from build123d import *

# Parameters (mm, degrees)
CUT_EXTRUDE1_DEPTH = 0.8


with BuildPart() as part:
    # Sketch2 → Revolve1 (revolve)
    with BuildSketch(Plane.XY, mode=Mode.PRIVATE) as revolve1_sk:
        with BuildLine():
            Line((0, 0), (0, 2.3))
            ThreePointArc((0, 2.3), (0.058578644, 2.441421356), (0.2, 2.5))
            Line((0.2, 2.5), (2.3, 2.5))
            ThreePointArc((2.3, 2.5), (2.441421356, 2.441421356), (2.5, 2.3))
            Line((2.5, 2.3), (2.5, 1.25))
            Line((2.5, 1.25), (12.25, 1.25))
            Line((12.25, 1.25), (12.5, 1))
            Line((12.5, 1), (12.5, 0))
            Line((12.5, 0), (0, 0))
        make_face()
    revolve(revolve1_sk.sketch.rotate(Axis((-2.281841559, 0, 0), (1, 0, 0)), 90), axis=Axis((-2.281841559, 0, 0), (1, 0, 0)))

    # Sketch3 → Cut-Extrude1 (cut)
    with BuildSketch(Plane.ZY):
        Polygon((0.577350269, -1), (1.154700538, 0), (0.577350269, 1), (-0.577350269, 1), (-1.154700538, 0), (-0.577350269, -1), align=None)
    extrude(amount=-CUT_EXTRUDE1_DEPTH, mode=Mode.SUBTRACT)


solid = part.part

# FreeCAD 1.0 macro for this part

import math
import FreeCAD as App
import Part
import Sketcher
from FreeCAD import Vector
Q = App.Units.Quantity

doc = App.newDocument("Part")
body = doc.addObject("PartDesign::Body", "Body")

# Sketch on XY plane
sketch1 = body.newObject("Sketcher::SketchObject", "Sketch")
sketch1.AttachmentSupport = (doc.getObject("XY_Plane"), [""])
sketch1.MapMode = "FlatFace"
sketch1.addGeometry([
    Part.LineSegment(Vector(0, 2.3, 0), Vector(0, 0, 0)),  # 0
    Part.LineSegment(Vector(0, 0, 0), Vector(12.5, 0, 0)),  # 1
    Part.LineSegment(Vector(12.5, 0, 0), Vector(12.5, 1, 0)),  # 2
    Part.LineSegment(Vector(12.5, 1, 0), Vector(12.25, 1.25, 0)),  # 3
    Part.LineSegment(Vector(12.25, 1.25, 0), Vector(2.5, 1.25, 0)),  # 4
    Part.LineSegment(Vector(2.5, 1.25, 0), Vector(2.5, 2.3, 0)),  # 5
    Part.ArcOfCircle(Part.Circle(Vector(2.3, 2.3, 0), Vector(0, 0, 1), 0.2), math.radians(0), math.radians(90)),  # 6
    Part.LineSegment(Vector(2.3, 2.5, 0), Vector(0.2, 2.5, 0)),  # 7
    Part.ArcOfCircle(Part.Circle(Vector(0.2, 2.3, 0), Vector(0, 0, 1), 0.2), math.radians(90), math.radians(180)),  # 8
], False)
sketch1.addConstraint([
    Sketcher.Constraint("Coincident", 0, 2, 1, 1),
    Sketcher.Constraint("Coincident", 1, 2, 2, 1),
    Sketcher.Constraint("Coincident", 2, 2, 3, 1),
    Sketcher.Constraint("Coincident", 3, 2, 4, 1),
    Sketcher.Constraint("Coincident", 4, 2, 5, 1),
    Sketcher.Constraint("Tangent", 5, 2, 6, 1),
    Sketcher.Constraint("Tangent", 6, 2, 7, 1),
    Sketcher.Constraint("Tangent", 7, 2, 8, 1),
    Sketcher.Constraint("Tangent", 8, 2, 0, 1),
    Sketcher.Constraint("Vertical", 0),
    Sketcher.Constraint("Horizontal", 1),
    Sketcher.Constraint("Vertical", 2),
    Sketcher.Constraint("Horizontal", 4),
    Sketcher.Constraint("Vertical", 5),
    Sketcher.Constraint("Horizontal", 7),
    Sketcher.Constraint("Coincident", 0, 2, -1, 1),
    Sketcher.Constraint("Equal", 6, 8),
    Sketcher.Constraint("Radius", 6, Q("0.2 mm")),
    Sketcher.Constraint("DistanceY", 2, 1, 2, 2, Q("1 mm")),
    Sketcher.Constraint("Angle", 3, Q("135 deg")),
    Sketcher.Constraint("DistanceX", 1, 1, 1, 2, Q("12.5 mm")),
    Sketcher.Constraint("DistanceX", 7, 2, 7, 1, Q("2.1 mm")),
    Sketcher.Constraint("DistanceY", 0, 2, 0, 1, Q("2.3 mm")),
    Sketcher.Constraint("DistanceX", 4, 2, 4, 1, Q("9.75 mm")),
])
revolution = body.newObject("PartDesign::Revolution", "Revolution")
revolution.Profile = sketch1
revolution.ReferenceAxis = (sketch1, ["H_Axis"])
revolution.Angle = 360

# Sketch on YZ plane
sketch2 = body.newObject("Sketcher::SketchObject", "Sketch001")
sketch2.AttachmentSupport = (doc.getObject("YZ_Plane"), [""])
sketch2.MapMode = "FlatFace"
sketch2.addGeometry([
    Part.LineSegment(Vector(-1, 0.6, 0), Vector(0, 1.2, 0)),  # 0
    Part.LineSegment(Vector(0, 1.2, 0), Vector(1, 0.6, 0)),  # 1
    Part.LineSegment(Vector(1, 0.6, 0), Vector(1, -0.6, 0)),  # 2
    Part.LineSegment(Vector(1, -0.6, 0), Vector(0, -1.2, 0)),  # 3
    Part.LineSegment(Vector(0, -1.2, 0), Vector(-1, -0.6, 0)),  # 4
    Part.LineSegment(Vector(-1, -0.6, 0), Vector(-1, 0.6, 0)),  # 5
], False)
sketch2.addConstraint([
    Sketcher.Constraint("Coincident", 0, 2, 1, 1),
    Sketcher.Constraint("Coincident", 1, 2, 2, 1),
    Sketcher.Constraint("Coincident", 2, 2, 3, 1),
    Sketcher.Constraint("Coincident", 3, 2, 4, 1),
    Sketcher.Constraint("Coincident", 4, 2, 5, 1),
    Sketcher.Constraint("Coincident", 5, 2, 0, 1),
    Sketcher.Constraint("Vertical", 2),
    Sketcher.Constraint("Vertical", 5),
    Sketcher.Constraint("Symmetric", 0, 2, 3, 2, -1, 1),
    Sketcher.Constraint("Symmetric", 1, 2, 4, 2, -1, 1),
    Sketcher.Constraint("PointOnObject", 0, 2, -2),
    Sketcher.Constraint("Parallel", 0, 3),
    Sketcher.Constraint("Horizontal", 2, 2, 4, 2),
    Sketcher.Constraint("Angle", 0, Q("30 deg")),
    Sketcher.Constraint("DistanceX", -1, 1, 1, 2, Q("1 mm")),
    Sketcher.Constraint("DistanceY", 2, 2, 2, 1, Q("1.154701 mm")),
])
pocket1 = body.newObject("PartDesign::Pocket", "Pocket")
pocket1.Profile = sketch2
pocket1.Length = 0.8
pocket1.Reversed = True

doc.recompute()
